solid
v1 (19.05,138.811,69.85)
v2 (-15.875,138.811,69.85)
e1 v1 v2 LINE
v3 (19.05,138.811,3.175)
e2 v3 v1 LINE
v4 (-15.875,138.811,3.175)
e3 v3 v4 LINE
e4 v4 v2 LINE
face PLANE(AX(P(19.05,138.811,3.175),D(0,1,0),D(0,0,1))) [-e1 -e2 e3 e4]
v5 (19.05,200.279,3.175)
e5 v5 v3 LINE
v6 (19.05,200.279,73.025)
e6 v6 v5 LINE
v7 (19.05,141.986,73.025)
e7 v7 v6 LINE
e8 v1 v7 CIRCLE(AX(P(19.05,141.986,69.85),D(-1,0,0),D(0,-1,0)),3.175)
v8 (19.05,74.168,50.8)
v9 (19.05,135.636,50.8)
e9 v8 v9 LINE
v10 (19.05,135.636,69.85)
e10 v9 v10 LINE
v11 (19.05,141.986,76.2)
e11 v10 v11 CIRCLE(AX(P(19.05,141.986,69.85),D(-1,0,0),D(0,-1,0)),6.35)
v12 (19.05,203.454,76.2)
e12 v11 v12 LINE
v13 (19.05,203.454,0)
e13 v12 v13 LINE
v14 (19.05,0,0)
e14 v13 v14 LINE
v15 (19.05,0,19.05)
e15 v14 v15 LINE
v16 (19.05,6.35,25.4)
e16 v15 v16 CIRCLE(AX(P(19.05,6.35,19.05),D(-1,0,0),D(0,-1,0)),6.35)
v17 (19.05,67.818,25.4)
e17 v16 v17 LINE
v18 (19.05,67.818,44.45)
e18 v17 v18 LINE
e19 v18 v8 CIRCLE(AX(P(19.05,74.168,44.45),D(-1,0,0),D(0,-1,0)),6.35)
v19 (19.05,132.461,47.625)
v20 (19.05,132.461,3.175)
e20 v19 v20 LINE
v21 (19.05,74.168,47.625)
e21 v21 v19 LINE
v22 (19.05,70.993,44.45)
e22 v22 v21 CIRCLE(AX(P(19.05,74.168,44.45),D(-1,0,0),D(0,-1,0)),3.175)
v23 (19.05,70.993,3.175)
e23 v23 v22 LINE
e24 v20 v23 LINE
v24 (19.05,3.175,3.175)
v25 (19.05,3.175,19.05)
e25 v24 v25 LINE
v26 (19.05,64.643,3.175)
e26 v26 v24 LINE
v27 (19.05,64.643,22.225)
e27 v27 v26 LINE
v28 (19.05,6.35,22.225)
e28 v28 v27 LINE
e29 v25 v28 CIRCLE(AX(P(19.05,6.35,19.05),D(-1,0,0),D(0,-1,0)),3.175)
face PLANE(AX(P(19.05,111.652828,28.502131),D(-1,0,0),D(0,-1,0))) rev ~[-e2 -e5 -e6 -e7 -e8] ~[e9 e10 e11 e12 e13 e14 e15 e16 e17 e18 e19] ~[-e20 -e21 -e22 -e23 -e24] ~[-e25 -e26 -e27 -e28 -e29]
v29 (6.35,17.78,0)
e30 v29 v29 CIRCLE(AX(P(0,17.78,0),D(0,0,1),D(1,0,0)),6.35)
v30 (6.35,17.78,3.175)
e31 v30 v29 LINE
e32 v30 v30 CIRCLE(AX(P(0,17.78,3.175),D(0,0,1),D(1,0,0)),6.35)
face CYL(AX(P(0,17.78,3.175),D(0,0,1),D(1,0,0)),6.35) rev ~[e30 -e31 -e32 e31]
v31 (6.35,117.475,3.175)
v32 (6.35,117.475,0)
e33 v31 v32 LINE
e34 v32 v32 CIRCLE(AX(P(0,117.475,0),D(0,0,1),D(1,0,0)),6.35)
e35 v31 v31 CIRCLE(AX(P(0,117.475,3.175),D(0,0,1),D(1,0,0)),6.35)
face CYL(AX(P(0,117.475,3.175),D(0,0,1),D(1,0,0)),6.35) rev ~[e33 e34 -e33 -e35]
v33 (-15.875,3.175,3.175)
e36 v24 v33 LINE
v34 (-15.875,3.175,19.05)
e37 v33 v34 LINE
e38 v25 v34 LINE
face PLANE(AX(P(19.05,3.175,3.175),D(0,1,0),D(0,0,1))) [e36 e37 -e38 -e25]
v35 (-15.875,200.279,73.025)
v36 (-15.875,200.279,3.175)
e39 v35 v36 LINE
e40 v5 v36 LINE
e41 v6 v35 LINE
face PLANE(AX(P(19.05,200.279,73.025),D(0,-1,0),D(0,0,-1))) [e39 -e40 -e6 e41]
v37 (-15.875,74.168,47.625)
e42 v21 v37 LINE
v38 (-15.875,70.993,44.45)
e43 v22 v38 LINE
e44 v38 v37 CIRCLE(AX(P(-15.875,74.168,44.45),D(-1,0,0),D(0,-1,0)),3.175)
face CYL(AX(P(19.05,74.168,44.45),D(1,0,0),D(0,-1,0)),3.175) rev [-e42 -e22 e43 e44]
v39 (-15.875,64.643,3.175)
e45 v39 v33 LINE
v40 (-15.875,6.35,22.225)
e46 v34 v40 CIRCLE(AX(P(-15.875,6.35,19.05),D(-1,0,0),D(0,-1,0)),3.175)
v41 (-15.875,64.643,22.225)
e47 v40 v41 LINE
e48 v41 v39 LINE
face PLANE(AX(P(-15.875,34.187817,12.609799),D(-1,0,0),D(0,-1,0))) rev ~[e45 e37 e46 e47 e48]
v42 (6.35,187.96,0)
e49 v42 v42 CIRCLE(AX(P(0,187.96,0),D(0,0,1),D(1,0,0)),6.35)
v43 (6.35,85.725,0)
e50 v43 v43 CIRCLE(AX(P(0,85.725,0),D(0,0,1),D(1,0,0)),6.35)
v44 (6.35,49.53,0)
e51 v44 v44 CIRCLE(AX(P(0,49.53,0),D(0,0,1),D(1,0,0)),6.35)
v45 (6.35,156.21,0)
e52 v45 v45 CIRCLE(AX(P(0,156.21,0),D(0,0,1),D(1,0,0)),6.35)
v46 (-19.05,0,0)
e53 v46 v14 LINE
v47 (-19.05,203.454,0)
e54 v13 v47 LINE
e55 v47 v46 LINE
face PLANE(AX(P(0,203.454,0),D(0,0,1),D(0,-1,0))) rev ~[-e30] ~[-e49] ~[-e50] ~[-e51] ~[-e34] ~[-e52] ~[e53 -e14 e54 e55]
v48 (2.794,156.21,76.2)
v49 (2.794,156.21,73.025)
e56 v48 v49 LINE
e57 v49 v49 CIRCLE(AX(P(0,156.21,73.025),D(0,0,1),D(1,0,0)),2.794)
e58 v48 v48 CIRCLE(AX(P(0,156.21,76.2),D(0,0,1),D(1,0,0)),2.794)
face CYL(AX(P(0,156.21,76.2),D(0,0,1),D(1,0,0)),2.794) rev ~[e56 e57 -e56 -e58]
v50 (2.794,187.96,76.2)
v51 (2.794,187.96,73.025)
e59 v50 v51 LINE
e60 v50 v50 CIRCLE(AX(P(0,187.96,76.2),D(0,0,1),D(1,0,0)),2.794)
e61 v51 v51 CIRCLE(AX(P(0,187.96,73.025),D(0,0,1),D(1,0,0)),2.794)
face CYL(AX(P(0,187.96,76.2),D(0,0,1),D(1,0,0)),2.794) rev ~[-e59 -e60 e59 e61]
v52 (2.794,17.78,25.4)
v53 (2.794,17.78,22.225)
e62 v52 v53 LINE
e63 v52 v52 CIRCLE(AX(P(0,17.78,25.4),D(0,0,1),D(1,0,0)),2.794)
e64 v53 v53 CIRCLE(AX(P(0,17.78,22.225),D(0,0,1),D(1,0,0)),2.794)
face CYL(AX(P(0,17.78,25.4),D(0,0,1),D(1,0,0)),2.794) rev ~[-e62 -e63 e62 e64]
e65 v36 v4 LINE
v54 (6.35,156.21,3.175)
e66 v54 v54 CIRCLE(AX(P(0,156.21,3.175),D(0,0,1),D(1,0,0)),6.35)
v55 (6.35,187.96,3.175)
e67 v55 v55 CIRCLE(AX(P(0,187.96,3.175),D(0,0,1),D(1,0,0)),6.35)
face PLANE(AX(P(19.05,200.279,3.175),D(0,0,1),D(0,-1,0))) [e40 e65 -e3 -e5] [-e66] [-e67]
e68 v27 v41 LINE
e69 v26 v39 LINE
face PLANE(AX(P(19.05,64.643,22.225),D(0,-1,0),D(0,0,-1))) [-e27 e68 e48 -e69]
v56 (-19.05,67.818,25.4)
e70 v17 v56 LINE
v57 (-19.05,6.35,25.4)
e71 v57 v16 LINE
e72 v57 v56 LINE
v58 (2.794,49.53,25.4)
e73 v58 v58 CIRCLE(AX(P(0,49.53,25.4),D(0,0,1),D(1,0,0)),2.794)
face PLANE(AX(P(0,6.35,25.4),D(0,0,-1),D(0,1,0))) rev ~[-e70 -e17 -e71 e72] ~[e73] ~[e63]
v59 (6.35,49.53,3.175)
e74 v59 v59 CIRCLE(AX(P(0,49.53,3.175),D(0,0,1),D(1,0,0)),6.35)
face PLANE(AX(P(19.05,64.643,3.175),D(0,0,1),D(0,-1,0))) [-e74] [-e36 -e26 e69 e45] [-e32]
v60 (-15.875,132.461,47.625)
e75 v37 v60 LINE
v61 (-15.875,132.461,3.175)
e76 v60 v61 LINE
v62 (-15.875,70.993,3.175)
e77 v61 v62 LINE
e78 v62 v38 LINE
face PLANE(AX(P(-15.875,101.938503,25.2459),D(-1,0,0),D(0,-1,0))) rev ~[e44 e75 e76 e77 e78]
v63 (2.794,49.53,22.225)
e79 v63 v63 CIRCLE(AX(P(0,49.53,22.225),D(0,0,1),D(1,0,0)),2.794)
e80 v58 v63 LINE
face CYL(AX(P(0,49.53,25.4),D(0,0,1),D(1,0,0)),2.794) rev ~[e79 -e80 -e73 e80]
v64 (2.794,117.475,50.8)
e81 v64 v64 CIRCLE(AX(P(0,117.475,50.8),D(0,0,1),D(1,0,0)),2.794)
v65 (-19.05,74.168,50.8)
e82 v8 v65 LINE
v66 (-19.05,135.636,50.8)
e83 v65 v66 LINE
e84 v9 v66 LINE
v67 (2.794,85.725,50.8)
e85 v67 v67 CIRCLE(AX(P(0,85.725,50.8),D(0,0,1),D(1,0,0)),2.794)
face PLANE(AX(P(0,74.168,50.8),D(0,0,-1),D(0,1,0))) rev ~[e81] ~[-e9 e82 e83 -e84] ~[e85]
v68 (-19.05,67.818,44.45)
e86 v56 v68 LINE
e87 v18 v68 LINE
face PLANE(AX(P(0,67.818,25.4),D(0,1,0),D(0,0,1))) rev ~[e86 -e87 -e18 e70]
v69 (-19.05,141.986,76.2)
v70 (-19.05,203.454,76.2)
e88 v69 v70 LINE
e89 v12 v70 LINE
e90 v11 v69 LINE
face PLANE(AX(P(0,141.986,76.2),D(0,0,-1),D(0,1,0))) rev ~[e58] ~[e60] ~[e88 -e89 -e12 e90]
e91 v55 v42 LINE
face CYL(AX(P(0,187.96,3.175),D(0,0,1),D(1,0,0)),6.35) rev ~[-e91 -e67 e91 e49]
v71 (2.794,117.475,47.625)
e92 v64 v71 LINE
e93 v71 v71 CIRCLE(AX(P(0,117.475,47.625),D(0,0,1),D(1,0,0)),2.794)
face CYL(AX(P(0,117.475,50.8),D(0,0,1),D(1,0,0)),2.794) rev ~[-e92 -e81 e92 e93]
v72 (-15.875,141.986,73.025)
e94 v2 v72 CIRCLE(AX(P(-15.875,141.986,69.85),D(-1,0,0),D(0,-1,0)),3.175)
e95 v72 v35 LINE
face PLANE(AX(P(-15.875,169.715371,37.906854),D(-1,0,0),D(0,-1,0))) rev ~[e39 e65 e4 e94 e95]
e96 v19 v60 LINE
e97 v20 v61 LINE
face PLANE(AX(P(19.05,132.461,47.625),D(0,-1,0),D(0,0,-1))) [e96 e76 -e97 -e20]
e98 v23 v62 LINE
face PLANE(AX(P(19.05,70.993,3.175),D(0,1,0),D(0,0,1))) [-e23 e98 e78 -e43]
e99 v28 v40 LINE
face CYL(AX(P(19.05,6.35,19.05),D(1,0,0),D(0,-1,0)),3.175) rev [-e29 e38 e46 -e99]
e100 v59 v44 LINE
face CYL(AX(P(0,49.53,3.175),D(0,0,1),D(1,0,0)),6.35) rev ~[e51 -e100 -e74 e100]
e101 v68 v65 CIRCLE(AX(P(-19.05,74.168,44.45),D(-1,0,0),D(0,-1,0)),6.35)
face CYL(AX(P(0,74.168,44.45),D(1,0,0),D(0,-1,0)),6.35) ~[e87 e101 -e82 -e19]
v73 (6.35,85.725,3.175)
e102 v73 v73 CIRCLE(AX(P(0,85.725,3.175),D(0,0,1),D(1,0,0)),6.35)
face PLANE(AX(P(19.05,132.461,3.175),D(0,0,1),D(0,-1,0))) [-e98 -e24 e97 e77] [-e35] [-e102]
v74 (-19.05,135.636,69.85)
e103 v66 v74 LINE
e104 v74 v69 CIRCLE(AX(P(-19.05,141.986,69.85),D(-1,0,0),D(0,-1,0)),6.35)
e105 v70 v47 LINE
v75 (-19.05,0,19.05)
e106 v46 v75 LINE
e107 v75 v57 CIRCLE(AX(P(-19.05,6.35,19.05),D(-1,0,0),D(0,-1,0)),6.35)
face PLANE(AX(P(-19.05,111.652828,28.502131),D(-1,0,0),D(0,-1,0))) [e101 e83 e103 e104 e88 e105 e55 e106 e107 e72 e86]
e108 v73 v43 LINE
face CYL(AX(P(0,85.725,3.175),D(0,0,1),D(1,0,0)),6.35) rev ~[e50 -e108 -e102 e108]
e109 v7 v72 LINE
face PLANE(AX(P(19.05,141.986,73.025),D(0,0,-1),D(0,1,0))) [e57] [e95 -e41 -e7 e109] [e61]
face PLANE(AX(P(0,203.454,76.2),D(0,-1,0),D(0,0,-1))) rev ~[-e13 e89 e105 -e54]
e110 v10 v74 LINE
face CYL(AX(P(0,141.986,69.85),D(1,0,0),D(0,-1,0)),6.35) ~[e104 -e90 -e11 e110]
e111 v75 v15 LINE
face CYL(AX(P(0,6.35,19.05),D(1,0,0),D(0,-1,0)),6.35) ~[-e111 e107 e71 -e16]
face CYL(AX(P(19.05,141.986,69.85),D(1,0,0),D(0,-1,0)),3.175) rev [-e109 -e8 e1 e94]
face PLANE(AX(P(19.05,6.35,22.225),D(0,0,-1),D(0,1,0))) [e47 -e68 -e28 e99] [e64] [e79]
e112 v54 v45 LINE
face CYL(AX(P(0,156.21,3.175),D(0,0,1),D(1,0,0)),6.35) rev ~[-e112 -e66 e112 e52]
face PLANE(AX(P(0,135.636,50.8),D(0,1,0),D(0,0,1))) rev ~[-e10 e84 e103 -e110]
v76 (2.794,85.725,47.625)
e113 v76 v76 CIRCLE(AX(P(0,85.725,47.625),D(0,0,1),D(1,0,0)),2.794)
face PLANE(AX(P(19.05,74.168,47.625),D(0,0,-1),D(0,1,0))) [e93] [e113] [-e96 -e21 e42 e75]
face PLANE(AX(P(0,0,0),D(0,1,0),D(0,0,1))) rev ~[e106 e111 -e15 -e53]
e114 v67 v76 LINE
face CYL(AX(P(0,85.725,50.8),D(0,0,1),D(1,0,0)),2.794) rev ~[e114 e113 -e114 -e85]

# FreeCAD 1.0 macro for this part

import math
import FreeCAD as App
import Part
import Sketcher
Q = App.Units.Quantity

doc = App.newDocument("Part")
params = doc.addObject("Spreadsheet::Sheet", "Params")
for row, (alias, value) in enumerate([
    ("sketch1_height", "3 in"),
    ("sketch1_radius", "0.25 in"),
    ("sketch1_width", "2.42 in"),
    ("pad1_length", "1.5 in"),
    ("sketch2_radius", "0.125 in"),
    ("sketch2_width", "2.42 in"),
    ("sketch2_height", "0.75 in"),
    ("pocket1_length", "1 mm"),
    ("pocket1_length2", "1.375 in"),
    ("sketch3_diameter", "0.22 in"),
    ("sketch4_diameter", "0.22 in"),
    ("sketch5_diameter", "0.22 in"),
    ("sketch6_diameter", "0.5 in"),
    ("pocket5_length", "1.375 in"),
], start=1):
    params.set(f"A{row}", alias)
    params.set(f"B{row}", "=" + value)
    params.setAlias(f"B{row}", alias)

body = doc.addObject("PartDesign::Body", "Body")

sketch1 = body.newObject("Sketcher::SketchObject", "Sketch")
sketch1.AttachmentSupport = (doc.getObject("YZ_Plane"), [""])
sketch1.MapMode = "FlatFace"
sketch1.addGeometry([
    Part.LineSegment(App.Vector(68, 25, 0), App.Vector(6, 25, 0)),
    Part.ArcOfCircle(Part.Circle(App.Vector(6, 19, 0), App.Vector(0, 0, 1), 6), math.radians(90), math.radians(180)),
    Part.LineSegment(App.Vector(0, 19, 0), App.Vector(0, 0, 0)),
    Part.LineSegment(App.Vector(0, 0, 0), App.Vector(203, 0, 0)),
    Part.LineSegment(App.Vector(203, 0, 0), App.Vector(203, 76, 0)),
    Part.LineSegment(App.Vector(203, 76, 0), App.Vector(142, 76, 0)),
    Part.ArcOfCircle(Part.Circle(App.Vector(142, 70, 0), App.Vector(0, 0, 1), 6), math.radians(90), math.radians(180)),
    Part.LineSegment(App.Vector(136, 70, 0), App.Vector(136, 51, 0)),
    Part.LineSegment(App.Vector(136, 51, 0), App.Vector(74, 51, 0)),
    Part.ArcOfCircle(Part.Circle(App.Vector(74, 44, 0), App.Vector(0, 0, 1), 6), math.radians(90), math.radians(180)),
    Part.LineSegment(App.Vector(68, 44, 0), App.Vector(68, 25, 0)),
], False)
sketch1.addConstraint([
    Sketcher.Constraint("Tangent", 0, 2, 1, 1),
    Sketcher.Constraint("Tangent", 1, 2, 2, 1),
    Sketcher.Constraint("Coincident", 2, 2, 3, 1),
    Sketcher.Constraint("Coincident", 3, 2, 4, 1),
    Sketcher.Constraint("Coincident", 4, 2, 5, 1),
    Sketcher.Constraint("Tangent", 5, 2, 6, 1),
    Sketcher.Constraint("Tangent", 6, 2, 7, 1),
    Sketcher.Constraint("Coincident", 7, 2, 8, 1),
    Sketcher.Constraint("Tangent", 8, 2, 9, 1),
    Sketcher.Constraint("Tangent", 9, 2, 10, 1),
    Sketcher.Constraint("Coincident", 10, 2, 0, 1),
    Sketcher.Constraint("Horizontal", 0),
    Sketcher.Constraint("Vertical", 2),
    Sketcher.Constraint("Horizontal", 3),
    Sketcher.Constraint("Vertical", 4),
    Sketcher.Constraint("Horizontal", 5),
    Sketcher.Constraint("Vertical", 7),
    Sketcher.Constraint("Horizontal", 8),
    Sketcher.Constraint("Vertical", 10),
    Sketcher.Constraint("Coincident", 2, 2, -1, 1),
    Sketcher.Constraint("Equal", 1, 6),
    Sketcher.Constraint("Equal", 6, 9),
    Sketcher.Constraint("Equal", 0, 5),
    Sketcher.Constraint("Equal", 5, 8),
    Sketcher.Constraint("Equal", 2, 7),
    Sketcher.Constraint("Equal", 7, 10),
    Sketcher.Constraint("DistanceY", 4, 1, 4, 2, Q("3 in")),
    Sketcher.Constraint("Radius", 1, Q("0.25 in")),
    Sketcher.Constraint("DistanceX", 0, 2, 0, 1, Q("2.42 in")),
])
sketch1.setExpression("Constraints[26]", "Params.sketch1_height")
sketch1.setExpression("Constraints[27]", "Params.sketch1_radius")
sketch1.setExpression("Constraints[28]", "Params.sketch1_width")
pad1 = body.newObject("PartDesign::Pad", "Pad")
pad1.Profile = sketch1
pad1.setExpression("Length", "Params.pad1_length")
pad1.Midplane = True

sketch2 = body.newObject("Sketcher::SketchObject", "Sketch001")
sketch2.AttachmentSupport = (doc.getObject("YZ_Plane"), [""])
sketch2.MapMode = "FlatFace"
sketch2.AttachmentOffset = App.Placement(App.Vector(0, 0, 0.75 * 25.4), App.Rotation())
sketch2.addGeometry([
    Part.LineSegment(App.Vector(64.6, 22.2, 0), App.Vector(6.3, 22.2, 0)),
    Part.ArcOfCircle(Part.Circle(App.Vector(6.4, 19, 0), App.Vector(0, 0, 1), 3.2), math.radians(90), math.radians(180)),
    Part.LineSegment(App.Vector(3.2, 19.1, 0), App.Vector(3.2, 3.2, 0)),
    Part.LineSegment(App.Vector(3.2, 3.2, 0), App.Vector(64.6, 3.2, 0)),
    Part.LineSegment(App.Vector(64.6, 3.2, 0), App.Vector(64.6, 22.2, 0)),
    Part.LineSegment(App.Vector(132.5, 47.6, 0), App.Vector(74.2, 47.6, 0)),
    Part.ArcOfCircle(Part.Circle(App.Vector(74.2, 44.4, 0), App.Vector(0, 0, 1), 3.2), math.radians(90), math.radians(180)),
    Part.LineSegment(App.Vector(71, 44.5, 0), App.Vector(71, 3.2, 0)),
    Part.LineSegment(App.Vector(71, 3.2, 0), App.Vector(132.5, 3.2, 0)),
    Part.LineSegment(App.Vector(132.5, 3.2, 0), App.Vector(132.5, 47.6, 0)),
    Part.LineSegment(App.Vector(200.3, 73, 0), App.Vector(142, 73, 0)),
    Part.ArcOfCircle(Part.Circle(App.Vector(142, 69.8, 0), App.Vector(0, 0, 1), 3.2), math.radians(90), math.radians(180)),
    Part.LineSegment(App.Vector(138.8, 69.8, 0), App.Vector(138.8, 3.2, 0)),
    Part.LineSegment(App.Vector(138.8, 3.2, 0), App.Vector(200.3, 3.2, 0)),
    Part.LineSegment(App.Vector(200.3, 3.2, 0), App.Vector(200.3, 73, 0)),
], False)
sketch2.addConstraint([
    Sketcher.Constraint("Tangent", 0, 2, 1, 1),
    Sketcher.Constraint("Tangent", 1, 2, 2, 1),
    Sketcher.Constraint("Coincident", 2, 2, 3, 1),
    Sketcher.Constraint("Coincident", 3, 2, 4, 1),
    Sketcher.Constraint("Coincident", 4, 2, 0, 1),
    Sketcher.Constraint("Tangent", 5, 2, 6, 1),
    Sketcher.Constraint("Tangent", 6, 2, 7, 1),
    Sketcher.Constraint("Coincident", 7, 2, 8, 1),
    Sketcher.Constraint("Coincident", 8, 2, 9, 1),
    Sketcher.Constraint("Coincident", 9, 2, 5, 1),
    Sketcher.Constraint("Tangent", 10, 2, 11, 1),
    Sketcher.Constraint("Tangent", 11, 2, 12, 1),
    Sketcher.Constraint("Coincident", 12, 2, 13, 1),
    Sketcher.Constraint("Coincident", 13, 2, 14, 1),
    Sketcher.Constraint("Coincident", 14, 2, 10, 1),
    Sketcher.Constraint("Horizontal", 0),
    Sketcher.Constraint("Vertical", 2),
    Sketcher.Constraint("Horizontal", 3),
    Sketcher.Constraint("Vertical", 4),
    Sketcher.Constraint("Horizontal", 5),
    Sketcher.Constraint("Vertical", 7),
    Sketcher.Constraint("Horizontal", 8),
    Sketcher.Constraint("Vertical", 9),
    Sketcher.Constraint("Horizontal", 10),
    Sketcher.Constraint("Vertical", 12),
    Sketcher.Constraint("Horizontal", 13),
    Sketcher.Constraint("Vertical", 14),
    Sketcher.Constraint("Equal", 1, 6),
    Sketcher.Constraint("Equal", 6, 11),
    Sketcher.Constraint("Horizontal", 3, 2, 7, 2),
    Sketcher.Constraint("Horizontal", 8, 2, 12, 2),
    Sketcher.Constraint("Equal", 0, 5),
    Sketcher.Constraint("Equal", 5, 10),
    Sketcher.Constraint("Radius", 1, Q("0.125 in")),
    Sketcher.Constraint("DistanceY", 1, 3, 6, 3, Q("1 in")),
    Sketcher.Constraint("DistanceY", 6, 3, 11, 3, Q("1 in")),
    Sketcher.Constraint("DistanceX", 3, 1, 3, 2, Q("2.42 in")),
    Sketcher.Constraint("DistanceY", 4, 1, 4, 2, Q("0.75 in")),
    Sketcher.Constraint("DistanceX", -1, 1, 1, 3, Q("0.25 in")),
    Sketcher.Constraint("DistanceY", -1, 1, 1, 3, Q("0.75 in")),
    Sketcher.Constraint("DistanceX", -1, 1, 6, 3, Q("2.92 in")),
    Sketcher.Constraint("DistanceX", -1, 1, 11, 3, Q("5.59 in")),
])
sketch2.setExpression("Constraints[33]", "Params.sketch2_radius")
sketch2.setExpression("Constraints[36]", "Params.sketch2_width")
sketch2.setExpression("Constraints[37]", "Params.sketch2_height")
pocket1 = body.newObject("PartDesign::Pocket", "Pocket")
pocket1.Profile = sketch2
pocket1.Type = "TwoLengths"
pocket1.setExpression("Length", "Params.pocket1_length")
pocket1.setExpression("Length2", "Params.pocket1_length2")
pocket1.Reversed = True

sketch3 = body.newObject("Sketcher::SketchObject", "Sketch002")
sketch3.AttachmentSupport = (doc.getObject("XY_Plane"), [""])
sketch3.MapMode = "FlatFace"
sketch3.AttachmentOffset = App.Placement(App.Vector(0, 0, 1 * 25.4), App.Rotation())
sketch3.addGeometry([
    Part.Circle(App.Vector(0, 17.8, 0), App.Vector(0, 0, 1), 2.8),
    Part.Circle(App.Vector(0, 49.5, 0), App.Vector(0, 0, 1), 2.8),
], False)
sketch3.addConstraint([
    Sketcher.Constraint("Equal", 0, 1),
    Sketcher.Constraint("PointOnObject", 0, 3, -2),
    Sketcher.Constraint("PointOnObject", 1, 3, -2),
    Sketcher.Constraint("Diameter", 0, Q("0.22 in")),
    Sketcher.Constraint("DistanceY", -1, 1, 0, 3, Q("0.7 in")),
    Sketcher.Constraint("DistanceY", -1, 1, 1, 3, Q("1.95 in")),
])
sketch3.setExpression("Constraints[3]", "Params.sketch3_diameter")
pocket2 = body.newObject("PartDesign::Pocket", "Pocket001")
pocket2.Profile = sketch3
pocket2.Type = "ThroughAll"
pocket2.Midplane = True

sketch4 = body.newObject("Sketcher::SketchObject", "Sketch003")
sketch4.AttachmentSupport = (doc.getObject("XY_Plane"), [""])
sketch4.MapMode = "FlatFace"
sketch4.AttachmentOffset = App.Placement(App.Vector(0, 0, 2 * 25.4), App.Rotation())
sketch4.addGeometry([
    Part.Circle(App.Vector(0, 85.7, 0), App.Vector(0, 0, 1), 2.8),
    Part.Circle(App.Vector(0, 117.5, 0), App.Vector(0, 0, 1), 2.8),
], False)
sketch4.addConstraint([
    Sketcher.Constraint("Equal", 0, 1),
    Sketcher.Constraint("PointOnObject", 0, 3, -2),
    Sketcher.Constraint("PointOnObject", 1, 3, -2),
    Sketcher.Constraint("Diameter", 0, Q("0.22 in")),
    Sketcher.Constraint("DistanceY", 0, 3, 1, 3, Q("1.25 in")),
    Sketcher.Constraint("DistanceY", -1, 1, 0, 3, Q("3.375 in")),
])
sketch4.setExpression("Constraints[3]", "Params.sketch4_diameter")
pocket3 = body.newObject("PartDesign::Pocket", "Pocket002")
pocket3.Profile = sketch4
pocket3.Type = "ThroughAll"
pocket3.Midplane = True

sketch5 = body.newObject("Sketcher::SketchObject", "Sketch004")
sketch5.AttachmentSupport = (doc.getObject("XY_Plane"), [""])
sketch5.MapMode = "FlatFace"
sketch5.AttachmentOffset = App.Placement(App.Vector(0, 0, 3 * 25.4), App.Rotation())
sketch5.addGeometry([
    Part.Circle(App.Vector(0, 156.2, 0), App.Vector(0, 0, 1), 2.8),
    Part.Circle(App.Vector(0, 188, 0), App.Vector(0, 0, 1), 2.8),
], False)
sketch5.addConstraint([
    Sketcher.Constraint("Equal", 0, 1),
    Sketcher.Constraint("PointOnObject", 0, 3, -2),
    Sketcher.Constraint("PointOnObject", 1, 3, -2),
    Sketcher.Constraint("Diameter", 0, Q("0.22 in")),
    Sketcher.Constraint("DistanceY", -1, 1, 1, 3, Q("7.4 in")),
    Sketcher.Constraint("DistanceY", -1, 1, 0, 3, Q("6.15 in")),
])
sketch5.setExpression("Constraints[3]", "Params.sketch5_diameter")
pocket4 = body.newObject("PartDesign::Pocket", "Pocket003")
pocket4.Profile = sketch5
pocket4.Type = "ThroughAll"
pocket4.Midplane = True

sketch6 = body.newObject("Sketcher::SketchObject", "Sketch005")
sketch6.AttachmentSupport = (doc.getObject("XY_Plane"), [""])
sketch6.MapMode = "FlatFace"
sketch6.AttachmentOffset = App.Placement(App.Vector(0, 0, 0.125 * 25.4), App.Rotation())
sketch6.addGeometry([
    Part.Circle(App.Vector(0, 18, 0), App.Vector(0, 0, 1), 6),
    Part.Circle(App.Vector(0, 50, 0), App.Vector(0, 0, 1), 6),
    Part.Circle(App.Vector(0, 86, 0), App.Vector(0, 0, 1), 6),
    Part.Circle(App.Vector(0, 117, 0), App.Vector(0, 0, 1), 6),
    Part.Circle(App.Vector(0, 156, 0), App.Vector(0, 0, 1), 6),
    Part.Circle(App.Vector(0, 188, 0), App.Vector(0, 0, 1), 6),
], False)
sketch6.addConstraint([
    Sketcher.Constraint("Equal", 0, 1),
    Sketcher.Constraint("Equal", 1, 2),
    Sketcher.Constraint("Equal", 2, 3),
    Sketcher.Constraint("Equal", 3, 4),
    Sketcher.Constraint("Equal", 4, 5),
    Sketcher.Constraint("PointOnObject", 0, 3, -2),
    Sketcher.Constraint("PointOnObject", 1, 3, -2),
    Sketcher.Constraint("PointOnObject", 2, 3, -2),
    Sketcher.Constraint("PointOnObject", 3, 3, -2),
    Sketcher.Constraint("PointOnObject", 4, 3, -2),
    Sketcher.Constraint("PointOnObject", 5, 3, -2),
    Sketcher.Constraint("Diameter", 0, Q("0.5 in")),
    Sketcher.Constraint("DistanceY", -1, 1, 0, 3, Q("0.7 in")),
    Sketcher.Constraint("DistanceY", -1, 1, 5, 3, Q("7.4 in")),
    Sketcher.Constraint("DistanceY", 1, 3, 4, 3, Q("4.2 in")),
    Sketcher.Constraint("DistanceY", -1, 1, 1, 3, Q("1.95 in")),
    Sketcher.Constraint("DistanceY", 2, 3, 3, 3, Q("1.25 in")),
    Sketcher.Constraint("DistanceY", -1, 1, 2, 3, Q("3.375 in")),
])
sketch6.setExpression("Constraints[11]", "Params.sketch6_diameter")
pocket5 = body.newObject("PartDesign::Pocket", "Pocket004")
pocket5.Profile = sketch6
pocket5.setExpression("Length", "Params.pocket5_length")

doc.recompute()
